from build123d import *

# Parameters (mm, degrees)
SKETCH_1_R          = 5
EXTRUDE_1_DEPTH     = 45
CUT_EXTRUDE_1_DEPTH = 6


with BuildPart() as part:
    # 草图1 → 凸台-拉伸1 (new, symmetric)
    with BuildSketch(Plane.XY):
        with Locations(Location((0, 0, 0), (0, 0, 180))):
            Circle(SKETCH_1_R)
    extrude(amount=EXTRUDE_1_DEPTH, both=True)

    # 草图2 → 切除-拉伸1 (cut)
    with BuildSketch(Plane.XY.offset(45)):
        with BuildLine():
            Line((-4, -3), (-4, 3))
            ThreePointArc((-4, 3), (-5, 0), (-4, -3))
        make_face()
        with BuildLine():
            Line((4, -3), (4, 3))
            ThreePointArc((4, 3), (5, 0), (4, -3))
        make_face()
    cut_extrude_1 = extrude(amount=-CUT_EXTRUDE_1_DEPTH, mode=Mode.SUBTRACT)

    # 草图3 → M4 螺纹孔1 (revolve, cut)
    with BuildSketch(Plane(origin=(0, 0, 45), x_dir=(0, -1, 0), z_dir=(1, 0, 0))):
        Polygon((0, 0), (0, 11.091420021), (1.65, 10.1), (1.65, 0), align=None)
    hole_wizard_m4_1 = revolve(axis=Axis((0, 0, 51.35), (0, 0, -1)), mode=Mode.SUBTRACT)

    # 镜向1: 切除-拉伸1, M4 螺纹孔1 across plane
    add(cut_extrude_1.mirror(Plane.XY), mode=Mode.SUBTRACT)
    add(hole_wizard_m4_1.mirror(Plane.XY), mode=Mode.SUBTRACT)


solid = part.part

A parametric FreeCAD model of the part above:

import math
import FreeCAD as App
import Part
import Sketcher
from FreeCAD import Vector
Q = App.Units.Quantity

doc = App.newDocument("Part")
body = doc.addObject("PartDesign::Body", "Body")

sketch1 = doc.addObject("Sketcher::SketchObject", "Sketch")
body.addObject(sketch1)
sketch1.AttachmentSupport = (doc.XY_Plane, [""])
sketch1.MapMode = "FlatFace"
sketch1.addGeometry(Part.Circle(Vector(0, 0, 0), Vector(0, 0, 1), 5), False)
sketch1.addConstraint(Sketcher.Constraint("Coincident", 0, 3, -1, 1))
sketch1.addConstraint(Sketcher.Constraint("Diameter", 0, 10.0))
pad1 = doc.addObject("PartDesign::Pad", "Pad")
body.addObject(pad1)
pad1.Profile = sketch1
pad1.Length = 90
pad1.Midplane = True

sketch2 = doc.addObject("Sketcher::SketchObject", "Sketch001")
body.addObject(sketch2)
sketch2.AttachmentSupport = (doc.XY_Plane, [""])
sketch2.MapMode = "FlatFace"
sketch2.AttachmentOffset = App.Placement(Vector(0, 0, 45), App.Rotation())
sketch2.addGeometry(Part.LineSegment(Vector(-4, -3, 0), Vector(-4, 3, 0)), False)
sketch2.addGeometry(Part.ArcOfCircle(Part.Circle(Vector(0, 0, 0), Vector(0, 0, 1), 5), math.radians(143), math.radians(217)), False)
sketch2.addGeometry(Part.LineSegment(Vector(4, 3, 0), Vector(4, -3, 0)), False)
sketch2.addGeometry(Part.ArcOfCircle(Part.Circle(Vector(0, 0, 0), Vector(0, 0, 1), 5), math.radians(-37), math.radians(37)), False)
sketch2.addConstraint(Sketcher.Constraint("Coincident", 0, 1, 1, 2))
sketch2.addConstraint(Sketcher.Constraint("Coincident", 1, 1, 0, 2))
sketch2.addConstraint(Sketcher.Constraint("Coincident", 2, 1, 3, 2))
sketch2.addConstraint(Sketcher.Constraint("Coincident", 3, 1, 2, 2))
sketch2.addConstraint(Sketcher.Constraint("Vertical", 0))
sketch2.addConstraint(Sketcher.Constraint("Vertical", 2))
sketch2.addConstraint(Sketcher.Constraint("Coincident", 1, 3, -1, 1))
sketch2.addConstraint(Sketcher.Constraint("Coincident", 3, 3, -1, 1))
sketch2.addConstraint(Sketcher.Constraint("Equal", 1, 3))
sketch2.addConstraint(Sketcher.Constraint("Horizontal", 1, 1, 2, 1))
sketch2.addConstraint(Sketcher.Constraint("Radius", 1, 5.0))
sketch2.addConstraint(Sketcher.Constraint("DistanceY", 0, 1, 0, 2, 6.0))
pocket1 = doc.addObject("PartDesign::Pocket", "Pocket")
body.addObject(pocket1)
pocket1.Profile = sketch2
pocket1.Length = 6

sketch3 = doc.addObject("Sketcher::SketchObject", "Sketch002")
body.addObject(sketch3)
sketch3.AttachmentSupport = (doc.YZ_Plane, [""])
sketch3.MapMode = "FlatFace"
sketch3.addGeometry(Part.LineSegment(Vector(0, 33.9, 0), Vector(0, 45, 0)), False)
sketch3.addGeometry(Part.LineSegment(Vector(0, 45, 0), Vector(-1.6, 45, 0)), False)
sketch3.addGeometry(Part.LineSegment(Vector(-1.6, 45, 0), Vector(-1.6, 34.9, 0)), False)
sketch3.addGeometry(Part.LineSegment(Vector(-1.6, 34.9, 0), Vector(0, 33.9, 0)), False)
sketch3.addConstraint(Sketcher.Constraint("Coincident", 0, 2, 1, 1))
sketch3.addConstraint(Sketcher.Constraint("Coincident", 1, 2, 2, 1))
sketch3.addConstraint(Sketcher.Constraint("Coincident", 2, 2, 3, 1))
sketch3.addConstraint(Sketcher.Constraint("Coincident", 3, 2, 0, 1))
sketch3.addConstraint(Sketcher.Constraint("Vertical", 0))
sketch3.addConstraint(Sketcher.Constraint("Horizontal", 1))
sketch3.addConstraint(Sketcher.Constraint("Vertical", 2))
sketch3.addConstraint(Sketcher.Constraint("PointOnObject", 0, 2, -2))
sketch3.addConstraint(Sketcher.Constraint("Angle", 3, Q("-31 deg")))
sketch3.addConstraint(Sketcher.Constraint("DistanceY", 2, 2, 2, 1, 10.1))
sketch3.addConstraint(Sketcher.Constraint("DistanceY", -1, 1, 0, 2, 45.0))
sketch3.addConstraint(Sketcher.Constraint("DistanceX", 1, 2, 1, 1, 1.65))
groove = doc.addObject("PartDesign::Groove", "Groove")
body.addObject(groove)
groove.Profile = sketch3
groove.ReferenceAxis = (sketch3, ["V_Axis"])
groove.Angle = 360
doc.recompute()

mirrored = doc.addObject("PartDesign::Mirrored", "Mirrored")
body.addObject(mirrored)
mirrored.Originals = [pocket1, groove]
mirrored.MirrorPlane = (doc.XY_Plane, [""])
body.Tip = mirrored

doc.recompute()
